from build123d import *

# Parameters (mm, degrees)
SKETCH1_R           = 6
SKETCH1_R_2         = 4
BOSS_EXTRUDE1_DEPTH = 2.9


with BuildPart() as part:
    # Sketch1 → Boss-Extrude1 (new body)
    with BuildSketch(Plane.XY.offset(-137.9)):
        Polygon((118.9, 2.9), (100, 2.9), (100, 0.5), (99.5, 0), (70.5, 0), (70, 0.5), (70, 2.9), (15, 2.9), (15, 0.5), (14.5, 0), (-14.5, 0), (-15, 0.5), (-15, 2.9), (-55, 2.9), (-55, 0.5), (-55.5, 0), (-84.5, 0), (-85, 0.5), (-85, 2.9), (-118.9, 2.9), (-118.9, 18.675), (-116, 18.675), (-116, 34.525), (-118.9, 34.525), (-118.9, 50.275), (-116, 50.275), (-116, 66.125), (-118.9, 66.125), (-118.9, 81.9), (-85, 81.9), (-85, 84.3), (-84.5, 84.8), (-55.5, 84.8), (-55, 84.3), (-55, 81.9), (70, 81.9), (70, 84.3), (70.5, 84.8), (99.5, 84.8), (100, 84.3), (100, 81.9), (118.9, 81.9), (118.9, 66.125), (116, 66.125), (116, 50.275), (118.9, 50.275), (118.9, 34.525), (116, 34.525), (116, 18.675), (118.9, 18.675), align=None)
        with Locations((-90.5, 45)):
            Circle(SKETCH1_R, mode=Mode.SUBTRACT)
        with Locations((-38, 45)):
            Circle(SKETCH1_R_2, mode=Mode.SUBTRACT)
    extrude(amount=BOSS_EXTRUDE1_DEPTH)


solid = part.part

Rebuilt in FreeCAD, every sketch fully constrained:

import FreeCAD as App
import Part
import Sketcher
from FreeCAD import Vector
Q = App.Units.Quantity

doc = App.newDocument("Part")
body = doc.addObject("PartDesign::Body", "Body")

# Sketch on XY plane
sketch1 = doc.addObject("Sketcher::SketchObject", "Sketch")
body.addObject(sketch1)
sketch1.AttachmentSupport = (doc.XY_Plane, [""])
sketch1.MapMode = "FlatFace"
sketch1.AttachmentOffset = App.Placement(Vector(0, 0, -137.9), App.Rotation())
sketch1.addGeometry([
    Part.LineSegment(Vector(100, 2.9, 0), Vector(118.9, 2.9, 0)),  # 0
    Part.LineSegment(Vector(118.9, 2.9, 0), Vector(118.9, 18.7, 0)),  # 1
    Part.LineSegment(Vector(118.9, 18.7, 0), Vector(116, 18.7, 0)),  # 2
    Part.LineSegment(Vector(116, 18.7, 0), Vector(116, 34.5, 0)),  # 3
    Part.LineSegment(Vector(116, 34.5, 0), Vector(118.9, 34.5, 0)),  # 4
    Part.LineSegment(Vector(118.9, 34.5, 0), Vector(118.9, 50.3, 0)),  # 5
    Part.LineSegment(Vector(118.9, 50.3, 0), Vector(116, 50.3, 0)),  # 6
    Part.LineSegment(Vector(116, 50.3, 0), Vector(116, 66.1, 0)),  # 7
    Part.LineSegment(Vector(116, 66.1, 0), Vector(118.9, 66.1, 0)),  # 8
    Part.LineSegment(Vector(118.9, 66.1, 0), Vector(118.9, 81.9, 0)),  # 9
    Part.LineSegment(Vector(118.9, 81.9, 0), Vector(100, 81.9, 0)),  # 10
    Part.LineSegment(Vector(100, 81.9, 0), Vector(100, 84.3, 0)),  # 11
    Part.LineSegment(Vector(100, 84.3, 0), Vector(99.5, 84.8, 0)),  # 12
    Part.LineSegment(Vector(99.5, 84.8, 0), Vector(70.5, 84.8, 0)),  # 13
    Part.LineSegment(Vector(70.5, 84.8, 0), Vector(70, 84.3, 0)),  # 14
    Part.LineSegment(Vector(70, 84.3, 0), Vector(70, 81.9, 0)),  # 15
    Part.LineSegment(Vector(70, 81.9, 0), Vector(-55, 81.9, 0)),  # 16
    Part.LineSegment(Vector(-55, 81.9, 0), Vector(-55, 84.3, 0)),  # 17
    Part.LineSegment(Vector(-55, 84.3, 0), Vector(-55.5, 84.8, 0)),  # 18
    Part.LineSegment(Vector(-55.5, 84.8, 0), Vector(-84.5, 84.8, 0)),  # 19
    Part.LineSegment(Vector(-84.5, 84.8, 0), Vector(-85, 84.3, 0)),  # 20
    Part.LineSegment(Vector(-85, 84.3, 0), Vector(-85, 81.9, 0)),  # 21
    Part.LineSegment(Vector(-85, 81.9, 0), Vector(-118.9, 81.9, 0)),  # 22
    Part.LineSegment(Vector(-118.9, 81.9, 0), Vector(-118.9, 66.1, 0)),  # 23
    Part.LineSegment(Vector(-118.9, 66.1, 0), Vector(-116, 66.1, 0)),  # 24
    Part.LineSegment(Vector(-116, 66.1, 0), Vector(-116, 50.3, 0)),  # 25
    Part.LineSegment(Vector(-116, 50.3, 0), Vector(-118.9, 50.3, 0)),  # 26
    Part.LineSegment(Vector(-118.9, 50.3, 0), Vector(-118.9, 34.5, 0)),  # 27
    Part.LineSegment(Vector(-118.9, 34.5, 0), Vector(-116, 34.5, 0)),  # 28
    Part.LineSegment(Vector(-116, 34.5, 0), Vector(-116, 18.7, 0)),  # 29
    Part.LineSegment(Vector(-116, 18.7, 0), Vector(-118.9, 18.7, 0)),  # 30
    Part.LineSegment(Vector(-118.9, 18.7, 0), Vector(-118.9, 2.9, 0)),  # 31
    Part.LineSegment(Vector(-118.9, 2.9, 0), Vector(-85, 2.9, 0)),  # 32
    Part.LineSegment(Vector(-85, 2.9, 0), Vector(-85, 0.5, 0)),  # 33
    Part.LineSegment(Vector(-85, 0.5, 0), Vector(-84.5, 0, 0)),  # 34
    Part.LineSegment(Vector(-84.5, 0, 0), Vector(-55.5, 0, 0)),  # 35
    Part.LineSegment(Vector(-55.5, 0, 0), Vector(-55, 0.5, 0)),  # 36
    Part.LineSegment(Vector(-55, 0.5, 0), Vector(-55, 2.9, 0)),  # 37
    Part.LineSegment(Vector(-55, 2.9, 0), Vector(-15, 2.9, 0)),  # 38
    Part.LineSegment(Vector(-15, 2.9, 0), Vector(-15, 0.5, 0)),  # 39
    Part.LineSegment(Vector(-15, 0.5, 0), Vector(-14.5, 0, 0)),  # 40
    Part.LineSegment(Vector(-14.5, 0, 0), Vector(14.5, 0, 0)),  # 41
    Part.LineSegment(Vector(14.5, 0, 0), Vector(15, 0.5, 0)),  # 42
    Part.LineSegment(Vector(15, 0.5, 0), Vector(15, 2.9, 0)),  # 43
    Part.LineSegment(Vector(15, 2.9, 0), Vector(70, 2.9, 0)),  # 44
    Part.LineSegment(Vector(70, 2.9, 0), Vector(70, 0.5, 0)),  # 45
    Part.LineSegment(Vector(70, 0.5, 0), Vector(70.5, 0, 0)),  # 46
    Part.LineSegment(Vector(70.5, 0, 0), Vector(99.5, 0, 0)),  # 47
    Part.LineSegment(Vector(99.5, 0, 0), Vector(100, 0.5, 0)),  # 48
    Part.LineSegment(Vector(100, 0.5, 0), Vector(100, 2.9, 0)),  # 49
    Part.Circle(Vector(-38, 45, 0), Vector(0, 0, 1), 4),  # 50
    Part.Circle(Vector(-90.5, 45, 0), Vector(0, 0, 1), 6),  # 51
], False)
sketch1.addConstraint([
    Sketcher.Constraint("Coincident", 0, 2, 1, 1),
    Sketcher.Constraint("Coincident", 1, 2, 2, 1),
    Sketcher.Constraint("Coincident", 2, 2, 3, 1),
    Sketcher.Constraint("Coincident", 3, 2, 4, 1),
    Sketcher.Constraint("Coincident", 4, 2, 5, 1),
    Sketcher.Constraint("Coincident", 5, 2, 6, 1),
    Sketcher.Constraint("Coincident", 6, 2, 7, 1),
    Sketcher.Constraint("Coincident", 7, 2, 8, 1),
    Sketcher.Constraint("Coincident", 8, 2, 9, 1),
    Sketcher.Constraint("Coincident", 9, 2, 10, 1),
    Sketcher.Constraint("Coincident", 10, 2, 11, 1),
    Sketcher.Constraint("Coincident", 11, 2, 12, 1),
    Sketcher.Constraint("Coincident", 12, 2, 13, 1),
    Sketcher.Constraint("Coincident", 13, 2, 14, 1),
    Sketcher.Constraint("Coincident", 14, 2, 15, 1),
    Sketcher.Constraint("Coincident", 15, 2, 16, 1),
    Sketcher.Constraint("Coincident", 16, 2, 17, 1),
    Sketcher.Constraint("Coincident", 17, 2, 18, 1),
    Sketcher.Constraint("Coincident", 18, 2, 19, 1),
    Sketcher.Constraint("Coincident", 19, 2, 20, 1),
    Sketcher.Constraint("Coincident", 20, 2, 21, 1),
    Sketcher.Constraint("Coincident", 21, 2, 22, 1),
    Sketcher.Constraint("Coincident", 22, 2, 23, 1),
    Sketcher.Constraint("Coincident", 23, 2, 24, 1),
    Sketcher.Constraint("Coincident", 24, 2, 25, 1),
    Sketcher.Constraint("Coincident", 25, 2, 26, 1),
    Sketcher.Constraint("Coincident", 26, 2, 27, 1),
    Sketcher.Constraint("Coincident", 27, 2, 28, 1),
    Sketcher.Constraint("Coincident", 28, 2, 29, 1),
    Sketcher.Constraint("Coincident", 29, 2, 30, 1),
    Sketcher.Constraint("Coincident", 30, 2, 31, 1),
    Sketcher.Constraint("Coincident", 31, 2, 32, 1),
    Sketcher.Constraint("Coincident", 32, 2, 33, 1),
    Sketcher.Constraint("Coincident", 33, 2, 34, 1),
    Sketcher.Constraint("Coincident", 34, 2, 35, 1),
    Sketcher.Constraint("Coincident", 35, 2, 36, 1),
    Sketcher.Constraint("Coincident", 36, 2, 37, 1),
    Sketcher.Constraint("Coincident", 37, 2, 38, 1),
    Sketcher.Constraint("Coincident", 38, 2, 39, 1),
    Sketcher.Constraint("Coincident", 39, 2, 40, 1),
    Sketcher.Constraint("Coincident", 40, 2, 41, 1),
    Sketcher.Constraint("Coincident", 41, 2, 42, 1),
    Sketcher.Constraint("Coincident", 42, 2, 43, 1),
    Sketcher.Constraint("Coincident", 43, 2, 44, 1),
    Sketcher.Constraint("Coincident", 44, 2, 45, 1),
    Sketcher.Constraint("Coincident", 45, 2, 46, 1),
    Sketcher.Constraint("Coincident", 46, 2, 47, 1),
    Sketcher.Constraint("Coincident", 47, 2, 48, 1),
    Sketcher.Constraint("Coincident", 48, 2, 49, 1),
    Sketcher.Constraint("Coincident", 49, 2, 0, 1),
    Sketcher.Constraint("Horizontal", 0),
    Sketcher.Constraint("Vertical", 1),
    Sketcher.Constraint("Horizontal", 2),
    Sketcher.Constraint("Vertical", 3),
    Sketcher.Constraint("Horizontal", 4),
    Sketcher.Constraint("Vertical", 5),
    Sketcher.Constraint("Horizontal", 6),
    Sketcher.Constraint("Vertical", 7),
    Sketcher.Constraint("Horizontal", 8),
    Sketcher.Constraint("Vertical", 9),
    Sketcher.Constraint("Horizontal", 10),
    Sketcher.Constraint("Vertical", 11),
    Sketcher.Constraint("Horizontal", 13),
    Sketcher.Constraint("Vertical", 15),
    Sketcher.Constraint("Horizontal", 16),
    Sketcher.Constraint("Vertical", 17),
    Sketcher.Constraint("Horizontal", 19),
    Sketcher.Constraint("Vertical", 21),
    Sketcher.Constraint("Horizontal", 22),
    Sketcher.Constraint("Vertical", 23),
    Sketcher.Constraint("Horizontal", 24),
    Sketcher.Constraint("Vertical", 25),
    Sketcher.Constraint("Horizontal", 26),
    Sketcher.Constraint("Vertical", 27),
    Sketcher.Constraint("Horizontal", 28),
    Sketcher.Constraint("Vertical", 29),
    Sketcher.Constraint("Horizontal", 30),
    Sketcher.Constraint("Vertical", 31),
    Sketcher.Constraint("Horizontal", 32),
    Sketcher.Constraint("Vertical", 33),
    Sketcher.Constraint("Horizontal", 35),
    Sketcher.Constraint("Vertical", 37),
    Sketcher.Constraint("Horizontal", 38),
    Sketcher.Constraint("Vertical", 39),
    Sketcher.Constraint("Horizontal", 41),
    Sketcher.Constraint("Vertical", 43),
    Sketcher.Constraint("Horizontal", 44),
    Sketcher.Constraint("Vertical", 45),
    Sketcher.Constraint("Horizontal", 47),
    Sketcher.Constraint("Vertical", 49),
    Sketcher.Constraint("Symmetric", 40, 2, 41, 2, -1, 1),
    Sketcher.Constraint("Symmetric", 9, 2, 22, 2, -2),
    Sketcher.Constraint("Symmetric", 7, 2, 24, 2, -2),
    Sketcher.Constraint("Symmetric", 5, 2, 26, 2, -2),
    Sketcher.Constraint("Symmetric", 3, 2, 28, 2, -2),
    Sketcher.Constraint("Symmetric", 1, 2, 30, 2, -2),
    Sketcher.Constraint("Symmetric", 39, 2, 42, 2, -2),
    Sketcher.Constraint("PointOnObject", 34, 2, -1),
    Sketcher.Constraint("PointOnObject", 46, 2, -1),
    Sketcher.Constraint("Perpendicular", 12, 14),
    Sketcher.Constraint("Perpendicular", 14, 18),
    Sketcher.Constraint("Perpendicular", 18, 20),
    Sketcher.Constraint("Perpendicular", 20, 34),
    Sketcher.Constraint("Perpendicular", 34, 36),
    Sketcher.Constraint("Perpendicular", 36, 40),
    Sketcher.Constraint("Perpendicular", 40, 42),
    Sketcher.Constraint("Perpendicular", 42, 46),
    Sketcher.Constraint("Perpendicular", 46, 48),
    Sketcher.Constraint("Horizontal", 50, 3, 51, 3),
    Sketcher.Constraint("Horizontal", 11, 2, 14, 2),
    Sketcher.Constraint("Horizontal", 10, 2, 15, 2),
    Sketcher.Constraint("Horizontal", 14, 2, 17, 2),
    Sketcher.Constraint("Horizontal", 13, 2, 18, 2),
    Sketcher.Constraint("Horizontal", 17, 2, 20, 2),
    Sketcher.Constraint("Horizontal", 0, 2, 31, 2),
    Sketcher.Constraint("Horizontal", 33, 2, 36, 2),
    Sketcher.Constraint("Horizontal", 32, 2, 37, 2),
    Sketcher.Constraint("Horizontal", 36, 2, 39, 2),
    Sketcher.Constraint("Horizontal", 38, 2, 43, 2),
    Sketcher.Constraint("Horizontal", 42, 2, 45, 2),
    Sketcher.Constraint("Horizontal", 45, 2, 48, 2),
    Sketcher.Constraint("Vertical", 1, 2, 4, 2),
    Sketcher.Constraint("Vertical", 3, 2, 6, 2),
    Sketcher.Constraint("Vertical", 5, 2, 8, 2),
    Sketcher.Constraint("Vertical", 21, 2, 32, 2),
    Sketcher.Constraint("Vertical", 19, 2, 34, 2),
    Sketcher.Constraint("Vertical", 18, 2, 35, 2),
    Sketcher.Constraint("Vertical", 15, 2, 44, 2),
    Sketcher.Constraint("Vertical", 12, 2, 47, 2),
    Sketcher.Constraint("Equal", 13, 19),
    Sketcher.Constraint("Equal", 35, 41),
    Sketcher.Constraint("Equal", 3, 7),
    Sketcher.Constraint("Equal", 1, 9),
    Sketcher.Constraint("Equal", 21, 33),
    Sketcher.Constraint("Diameter", 50, Q("8 mm")),
    Sketcher.Constraint("Diameter", 51, Q("12 mm")),
    Sketcher.Constraint("DistanceX", 13, 2, 13, 1, Q("29 mm")),
    Sketcher.Constraint("DistanceX", 16, 2, 16, 1, Q("125 mm")),
    Sketcher.Constraint("DistanceX", 38, 1, 38, 2, Q("40 mm")),
    Sketcher.Constraint("DistanceX", 44, 1, 44, 2, Q("55 mm")),
    Sketcher.Constraint("DistanceX", 0, 1, 0, 2, Q("18.9 mm")),
    Sketcher.Constraint("DistanceX", 2, 2, 2, 1, Q("2.9 mm")),
    Sketcher.Constraint("DistanceY", 11, 1, 11, 2, Q("2.4 mm")),
    Sketcher.Constraint("DistanceX", 50, 3, -1, 1, Q("38 mm")),
    Sketcher.Constraint("DistanceY", -1, 1, 50, 3, Q("45 mm")),
    Sketcher.Constraint("DistanceX", 51, 3, 18, 2, Q("35 mm")),
    Sketcher.Constraint("DistanceY", 3, 1, 3, 2, Q("15.85 mm")),
    Sketcher.Constraint("DistanceY", 5, 1, 5, 2, Q("15.75 mm")),
    Sketcher.Constraint("DistanceY", -1, 1, 9, 2, Q("81.9 mm")),
])
pad1 = doc.addObject("PartDesign::Pad", "Pad")
body.addObject(pad1)
pad1.Profile = sketch1
pad1.Length = 2.9

doc.recompute()
